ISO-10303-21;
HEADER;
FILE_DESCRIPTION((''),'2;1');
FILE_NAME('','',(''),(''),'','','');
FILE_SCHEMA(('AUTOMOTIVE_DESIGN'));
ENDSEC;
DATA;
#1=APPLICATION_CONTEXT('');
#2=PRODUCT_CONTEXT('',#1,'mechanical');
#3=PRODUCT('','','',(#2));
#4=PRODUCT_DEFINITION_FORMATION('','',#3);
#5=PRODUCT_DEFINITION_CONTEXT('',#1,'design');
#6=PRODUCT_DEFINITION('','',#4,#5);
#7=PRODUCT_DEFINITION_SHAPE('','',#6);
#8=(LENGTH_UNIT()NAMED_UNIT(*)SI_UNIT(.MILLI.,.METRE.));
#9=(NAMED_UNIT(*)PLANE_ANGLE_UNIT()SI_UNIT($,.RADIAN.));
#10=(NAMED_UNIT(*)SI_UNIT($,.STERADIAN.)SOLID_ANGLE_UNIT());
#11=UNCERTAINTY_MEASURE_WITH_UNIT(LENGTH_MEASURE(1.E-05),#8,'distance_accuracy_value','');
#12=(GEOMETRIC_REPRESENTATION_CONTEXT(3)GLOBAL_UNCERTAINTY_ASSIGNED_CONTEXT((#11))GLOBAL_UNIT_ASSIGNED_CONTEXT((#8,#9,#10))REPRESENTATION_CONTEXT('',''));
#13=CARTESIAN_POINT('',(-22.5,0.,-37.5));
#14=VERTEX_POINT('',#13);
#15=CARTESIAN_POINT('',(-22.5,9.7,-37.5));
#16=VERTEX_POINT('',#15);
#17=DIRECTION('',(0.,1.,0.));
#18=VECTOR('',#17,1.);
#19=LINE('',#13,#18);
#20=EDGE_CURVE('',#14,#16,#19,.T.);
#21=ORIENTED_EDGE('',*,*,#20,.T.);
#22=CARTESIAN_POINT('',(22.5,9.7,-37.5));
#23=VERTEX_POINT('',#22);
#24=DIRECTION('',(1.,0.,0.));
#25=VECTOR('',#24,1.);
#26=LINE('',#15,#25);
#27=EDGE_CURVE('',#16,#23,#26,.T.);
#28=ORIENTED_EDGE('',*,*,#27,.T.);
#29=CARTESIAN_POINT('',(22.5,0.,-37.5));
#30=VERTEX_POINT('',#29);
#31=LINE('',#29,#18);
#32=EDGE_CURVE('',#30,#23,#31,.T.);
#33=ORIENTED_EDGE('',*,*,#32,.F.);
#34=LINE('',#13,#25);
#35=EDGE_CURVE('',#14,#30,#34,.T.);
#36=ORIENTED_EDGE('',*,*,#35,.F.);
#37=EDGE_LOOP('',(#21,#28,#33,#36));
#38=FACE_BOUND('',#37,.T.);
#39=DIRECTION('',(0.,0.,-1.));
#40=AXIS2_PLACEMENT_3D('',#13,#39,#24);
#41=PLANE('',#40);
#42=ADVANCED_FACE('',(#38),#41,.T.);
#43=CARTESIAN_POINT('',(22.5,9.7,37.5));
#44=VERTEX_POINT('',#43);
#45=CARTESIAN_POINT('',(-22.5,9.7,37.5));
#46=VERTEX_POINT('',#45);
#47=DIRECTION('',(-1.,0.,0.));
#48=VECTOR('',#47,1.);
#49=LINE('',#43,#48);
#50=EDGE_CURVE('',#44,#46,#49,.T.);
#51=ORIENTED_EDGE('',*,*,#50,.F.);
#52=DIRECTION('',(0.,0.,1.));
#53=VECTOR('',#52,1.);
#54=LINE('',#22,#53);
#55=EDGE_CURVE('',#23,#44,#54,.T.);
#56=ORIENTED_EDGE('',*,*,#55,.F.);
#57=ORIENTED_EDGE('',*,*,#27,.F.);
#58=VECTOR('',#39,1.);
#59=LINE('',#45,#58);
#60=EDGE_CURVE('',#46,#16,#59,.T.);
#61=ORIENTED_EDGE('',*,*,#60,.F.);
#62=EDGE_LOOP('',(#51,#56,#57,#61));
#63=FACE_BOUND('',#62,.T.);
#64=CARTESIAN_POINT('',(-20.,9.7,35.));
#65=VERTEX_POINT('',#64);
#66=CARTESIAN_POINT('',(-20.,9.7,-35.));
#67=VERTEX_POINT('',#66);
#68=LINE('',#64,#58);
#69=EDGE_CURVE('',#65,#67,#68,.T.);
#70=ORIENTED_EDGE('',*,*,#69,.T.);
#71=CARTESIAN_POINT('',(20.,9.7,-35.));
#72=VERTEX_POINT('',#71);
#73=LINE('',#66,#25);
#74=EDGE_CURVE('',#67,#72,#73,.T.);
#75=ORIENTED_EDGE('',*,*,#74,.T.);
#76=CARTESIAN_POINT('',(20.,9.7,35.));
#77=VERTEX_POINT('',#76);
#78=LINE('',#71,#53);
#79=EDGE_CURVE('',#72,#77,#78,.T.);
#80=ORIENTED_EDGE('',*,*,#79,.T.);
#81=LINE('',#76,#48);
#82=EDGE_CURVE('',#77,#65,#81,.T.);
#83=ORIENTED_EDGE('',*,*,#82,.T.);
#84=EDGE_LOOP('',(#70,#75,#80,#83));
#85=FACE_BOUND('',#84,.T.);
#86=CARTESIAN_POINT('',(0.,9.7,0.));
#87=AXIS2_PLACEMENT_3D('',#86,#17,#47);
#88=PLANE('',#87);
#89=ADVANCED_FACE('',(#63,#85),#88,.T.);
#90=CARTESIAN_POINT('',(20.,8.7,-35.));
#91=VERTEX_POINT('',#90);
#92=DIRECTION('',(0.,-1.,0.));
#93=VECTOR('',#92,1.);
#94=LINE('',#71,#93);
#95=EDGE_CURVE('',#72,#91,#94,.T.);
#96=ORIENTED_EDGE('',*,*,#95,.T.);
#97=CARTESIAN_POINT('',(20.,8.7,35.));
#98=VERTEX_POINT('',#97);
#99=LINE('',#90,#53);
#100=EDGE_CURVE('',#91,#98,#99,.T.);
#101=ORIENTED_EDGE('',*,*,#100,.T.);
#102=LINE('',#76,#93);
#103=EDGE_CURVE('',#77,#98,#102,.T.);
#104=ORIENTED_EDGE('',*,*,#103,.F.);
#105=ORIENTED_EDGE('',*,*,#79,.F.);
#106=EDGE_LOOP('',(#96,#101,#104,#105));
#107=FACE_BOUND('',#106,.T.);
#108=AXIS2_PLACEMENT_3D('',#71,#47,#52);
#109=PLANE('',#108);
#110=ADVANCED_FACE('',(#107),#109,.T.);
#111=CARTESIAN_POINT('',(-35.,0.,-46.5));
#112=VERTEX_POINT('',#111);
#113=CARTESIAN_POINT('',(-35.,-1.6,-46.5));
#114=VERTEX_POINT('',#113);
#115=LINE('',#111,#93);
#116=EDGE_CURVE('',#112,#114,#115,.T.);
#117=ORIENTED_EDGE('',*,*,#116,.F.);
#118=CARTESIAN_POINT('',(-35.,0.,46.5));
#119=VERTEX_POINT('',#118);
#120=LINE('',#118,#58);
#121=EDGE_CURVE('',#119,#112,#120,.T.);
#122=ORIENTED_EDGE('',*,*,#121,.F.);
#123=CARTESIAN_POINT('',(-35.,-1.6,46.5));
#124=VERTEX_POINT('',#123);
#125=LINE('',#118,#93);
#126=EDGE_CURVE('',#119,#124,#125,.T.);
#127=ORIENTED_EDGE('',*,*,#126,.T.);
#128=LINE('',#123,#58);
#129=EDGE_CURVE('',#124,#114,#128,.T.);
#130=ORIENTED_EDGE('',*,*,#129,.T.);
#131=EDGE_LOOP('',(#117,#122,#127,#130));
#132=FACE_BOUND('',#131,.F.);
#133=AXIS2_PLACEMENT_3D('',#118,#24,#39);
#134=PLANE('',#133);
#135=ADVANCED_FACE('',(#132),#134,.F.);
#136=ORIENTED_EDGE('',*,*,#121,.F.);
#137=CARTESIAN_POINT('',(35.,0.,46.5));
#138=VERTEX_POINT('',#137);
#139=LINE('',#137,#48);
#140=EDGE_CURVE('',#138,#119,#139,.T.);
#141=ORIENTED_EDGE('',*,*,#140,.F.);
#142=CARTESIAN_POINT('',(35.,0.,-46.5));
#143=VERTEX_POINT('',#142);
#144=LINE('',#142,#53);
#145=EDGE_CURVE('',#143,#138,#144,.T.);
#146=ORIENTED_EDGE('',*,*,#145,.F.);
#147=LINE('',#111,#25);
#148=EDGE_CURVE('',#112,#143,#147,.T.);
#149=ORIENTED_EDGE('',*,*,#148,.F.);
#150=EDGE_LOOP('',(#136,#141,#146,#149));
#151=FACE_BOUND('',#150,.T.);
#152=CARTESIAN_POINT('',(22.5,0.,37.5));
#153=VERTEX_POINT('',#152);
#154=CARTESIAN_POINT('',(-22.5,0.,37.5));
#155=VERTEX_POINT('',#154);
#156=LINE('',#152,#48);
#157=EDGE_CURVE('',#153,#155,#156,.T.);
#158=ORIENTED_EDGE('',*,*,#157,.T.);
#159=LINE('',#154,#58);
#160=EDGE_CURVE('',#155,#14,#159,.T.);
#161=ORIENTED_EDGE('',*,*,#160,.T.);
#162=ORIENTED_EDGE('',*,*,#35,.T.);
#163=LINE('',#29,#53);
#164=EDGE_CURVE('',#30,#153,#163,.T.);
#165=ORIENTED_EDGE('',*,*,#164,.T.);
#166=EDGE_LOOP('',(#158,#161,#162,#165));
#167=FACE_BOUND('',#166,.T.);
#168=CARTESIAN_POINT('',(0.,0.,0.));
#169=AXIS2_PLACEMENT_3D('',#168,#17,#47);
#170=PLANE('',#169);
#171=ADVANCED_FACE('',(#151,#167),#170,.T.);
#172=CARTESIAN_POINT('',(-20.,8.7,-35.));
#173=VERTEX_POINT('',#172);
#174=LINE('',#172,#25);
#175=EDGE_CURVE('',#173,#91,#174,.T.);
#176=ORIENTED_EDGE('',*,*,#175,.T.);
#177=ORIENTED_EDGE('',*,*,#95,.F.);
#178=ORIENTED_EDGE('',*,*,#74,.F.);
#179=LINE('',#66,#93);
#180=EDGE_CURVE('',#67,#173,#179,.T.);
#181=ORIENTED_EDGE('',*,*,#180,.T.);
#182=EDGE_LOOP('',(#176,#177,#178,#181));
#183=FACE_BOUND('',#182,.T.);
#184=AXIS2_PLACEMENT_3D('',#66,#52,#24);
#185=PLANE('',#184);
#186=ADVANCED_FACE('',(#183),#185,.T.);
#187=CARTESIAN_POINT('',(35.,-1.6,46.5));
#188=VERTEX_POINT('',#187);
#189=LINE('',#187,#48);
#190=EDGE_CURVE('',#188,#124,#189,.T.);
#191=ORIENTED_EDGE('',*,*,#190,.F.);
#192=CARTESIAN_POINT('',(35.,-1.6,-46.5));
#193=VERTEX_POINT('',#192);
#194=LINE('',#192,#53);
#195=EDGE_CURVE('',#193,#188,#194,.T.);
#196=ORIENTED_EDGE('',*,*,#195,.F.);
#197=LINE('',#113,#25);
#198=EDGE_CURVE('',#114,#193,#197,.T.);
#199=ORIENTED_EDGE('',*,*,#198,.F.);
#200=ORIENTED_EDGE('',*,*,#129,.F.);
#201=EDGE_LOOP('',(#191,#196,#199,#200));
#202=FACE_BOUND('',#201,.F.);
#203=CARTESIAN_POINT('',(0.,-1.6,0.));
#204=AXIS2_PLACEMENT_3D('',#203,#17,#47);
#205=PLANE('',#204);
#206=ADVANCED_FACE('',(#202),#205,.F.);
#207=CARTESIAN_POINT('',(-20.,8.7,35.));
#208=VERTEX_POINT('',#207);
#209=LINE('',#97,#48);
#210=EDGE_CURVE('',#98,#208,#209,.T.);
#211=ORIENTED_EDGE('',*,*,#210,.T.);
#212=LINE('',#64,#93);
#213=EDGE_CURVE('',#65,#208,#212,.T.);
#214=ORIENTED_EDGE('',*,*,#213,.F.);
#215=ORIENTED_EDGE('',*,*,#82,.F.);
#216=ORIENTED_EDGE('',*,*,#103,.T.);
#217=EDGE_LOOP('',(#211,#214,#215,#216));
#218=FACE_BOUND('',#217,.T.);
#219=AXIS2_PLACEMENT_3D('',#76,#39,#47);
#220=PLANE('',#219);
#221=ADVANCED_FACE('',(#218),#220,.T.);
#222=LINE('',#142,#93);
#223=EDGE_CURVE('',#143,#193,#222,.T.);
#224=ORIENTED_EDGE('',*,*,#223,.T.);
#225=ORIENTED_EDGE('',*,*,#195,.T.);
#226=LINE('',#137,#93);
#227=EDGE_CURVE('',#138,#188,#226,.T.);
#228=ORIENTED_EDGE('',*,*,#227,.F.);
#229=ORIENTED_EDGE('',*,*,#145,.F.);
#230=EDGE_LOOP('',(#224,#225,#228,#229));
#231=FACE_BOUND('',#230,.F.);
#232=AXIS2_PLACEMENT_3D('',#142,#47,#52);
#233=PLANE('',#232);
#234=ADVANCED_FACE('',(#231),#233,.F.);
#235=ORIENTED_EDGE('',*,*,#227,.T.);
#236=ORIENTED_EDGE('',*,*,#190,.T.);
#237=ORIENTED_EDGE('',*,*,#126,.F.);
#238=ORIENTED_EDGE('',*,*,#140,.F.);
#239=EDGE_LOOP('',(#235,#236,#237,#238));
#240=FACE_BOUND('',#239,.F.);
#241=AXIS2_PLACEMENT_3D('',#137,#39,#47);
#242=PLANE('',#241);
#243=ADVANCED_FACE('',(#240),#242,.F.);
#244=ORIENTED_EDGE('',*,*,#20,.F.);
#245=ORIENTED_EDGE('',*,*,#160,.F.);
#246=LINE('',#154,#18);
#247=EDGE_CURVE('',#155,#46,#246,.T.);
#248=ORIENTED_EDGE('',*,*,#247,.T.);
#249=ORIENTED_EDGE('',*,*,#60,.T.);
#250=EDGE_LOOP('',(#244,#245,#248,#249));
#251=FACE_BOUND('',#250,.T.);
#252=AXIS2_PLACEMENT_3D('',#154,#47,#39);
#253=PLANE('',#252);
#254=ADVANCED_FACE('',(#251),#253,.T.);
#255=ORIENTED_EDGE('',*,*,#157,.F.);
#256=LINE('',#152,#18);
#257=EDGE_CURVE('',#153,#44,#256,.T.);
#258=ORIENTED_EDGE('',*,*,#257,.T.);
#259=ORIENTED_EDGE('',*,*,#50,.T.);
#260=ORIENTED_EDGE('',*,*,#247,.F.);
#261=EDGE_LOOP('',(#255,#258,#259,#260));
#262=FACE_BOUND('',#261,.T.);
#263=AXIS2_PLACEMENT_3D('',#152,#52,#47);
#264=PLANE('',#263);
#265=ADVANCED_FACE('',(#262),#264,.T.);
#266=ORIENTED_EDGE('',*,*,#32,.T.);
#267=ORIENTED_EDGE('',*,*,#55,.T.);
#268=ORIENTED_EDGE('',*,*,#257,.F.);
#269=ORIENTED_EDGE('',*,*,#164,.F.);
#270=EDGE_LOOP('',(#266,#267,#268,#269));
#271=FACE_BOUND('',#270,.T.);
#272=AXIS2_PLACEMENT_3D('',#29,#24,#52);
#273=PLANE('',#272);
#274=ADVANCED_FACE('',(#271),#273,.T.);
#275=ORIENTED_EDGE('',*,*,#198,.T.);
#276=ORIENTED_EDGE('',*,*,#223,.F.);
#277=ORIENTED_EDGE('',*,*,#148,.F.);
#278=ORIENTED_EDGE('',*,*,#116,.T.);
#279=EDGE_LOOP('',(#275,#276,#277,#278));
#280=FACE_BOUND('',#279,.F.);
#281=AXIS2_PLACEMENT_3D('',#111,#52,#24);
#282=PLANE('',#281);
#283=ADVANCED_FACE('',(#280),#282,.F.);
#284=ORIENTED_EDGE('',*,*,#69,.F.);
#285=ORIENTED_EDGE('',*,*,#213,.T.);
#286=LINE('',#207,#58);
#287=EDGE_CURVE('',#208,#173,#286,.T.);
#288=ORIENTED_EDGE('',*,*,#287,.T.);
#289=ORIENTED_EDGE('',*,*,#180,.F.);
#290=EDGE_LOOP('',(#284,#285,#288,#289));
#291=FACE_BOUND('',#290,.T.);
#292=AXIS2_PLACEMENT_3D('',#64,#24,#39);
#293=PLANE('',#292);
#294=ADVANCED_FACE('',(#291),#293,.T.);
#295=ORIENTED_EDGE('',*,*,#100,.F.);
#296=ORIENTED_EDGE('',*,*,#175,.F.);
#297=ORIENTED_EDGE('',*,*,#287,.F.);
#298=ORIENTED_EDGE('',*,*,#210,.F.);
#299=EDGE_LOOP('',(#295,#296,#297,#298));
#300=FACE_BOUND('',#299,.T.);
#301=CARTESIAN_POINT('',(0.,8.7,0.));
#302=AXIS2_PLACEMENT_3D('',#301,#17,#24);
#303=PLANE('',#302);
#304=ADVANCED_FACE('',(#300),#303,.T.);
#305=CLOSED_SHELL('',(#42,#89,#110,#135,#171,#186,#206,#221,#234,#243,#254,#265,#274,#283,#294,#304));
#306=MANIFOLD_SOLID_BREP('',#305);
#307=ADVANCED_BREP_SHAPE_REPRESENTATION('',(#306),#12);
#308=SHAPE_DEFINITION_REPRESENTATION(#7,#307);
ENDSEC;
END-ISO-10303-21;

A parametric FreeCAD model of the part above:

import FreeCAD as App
import Part
import Sketcher

doc = App.newDocument("Part")
body = doc.addObject("PartDesign::Body", "Body")

sketch1 = body.newObject("Sketcher::SketchObject", "Sketch")
sketch1.AttachmentSupport = (doc.getObject("XZ_Plane"), [""])
sketch1.MapMode = "FlatFace"
sketch1.addGeometry([
    Part.LineSegment(App.Vector(-35, 46, 0), App.Vector(35, 46, 0)),
    Part.LineSegment(App.Vector(35, 46, 0), App.Vector(35, -46, 0)),
    Part.LineSegment(App.Vector(35, -46, 0), App.Vector(-35, -46, 0)),
    Part.LineSegment(App.Vector(-35, -46, 0), App.Vector(-35, 46, 0)),
], False)
sketch1.addConstraint([
    Sketcher.Constraint("Coincident", 0, 2, 1, 1),
    Sketcher.Constraint("Coincident", 1, 2, 2, 1),
    Sketcher.Constraint("Coincident", 2, 2, 3, 1),
    Sketcher.Constraint("Coincident", 3, 2, 0, 1),
    Sketcher.Constraint("Horizontal", 0),
    Sketcher.Constraint("Vertical", 1),
    Sketcher.Constraint("Horizontal", 2),
    Sketcher.Constraint("Vertical", 3),
    Sketcher.Constraint("Symmetric", 0, 2, 2, 2, -1, 1),
    Sketcher.Constraint("DistanceX", 0, 1, 0, 2, 70.0),
    Sketcher.Constraint("DistanceY", 1, 2, 1, 1, 93.0),
])
pad1 = body.newObject("PartDesign::Pad", "Pad")
pad1.Profile = sketch1
pad1.Length = 1.6

sketch2 = body.newObject("Sketcher::SketchObject", "Sketch001")
sketch2.AttachmentSupport = (doc.getObject("XZ_Plane"), [""])
sketch2.MapMode = "FlatFace"
sketch2.addGeometry([
    Part.LineSegment(App.Vector(-22, 38, 0), App.Vector(22, 38, 0)),
    Part.LineSegment(App.Vector(22, 38, 0), App.Vector(22, -38, 0)),
    Part.LineSegment(App.Vector(22, -38, 0), App.Vector(-22, -38, 0)),
    Part.LineSegment(App.Vector(-22, -38, 0), App.Vector(-22, 38, 0)),
], False)
sketch2.addConstraint([
    Sketcher.Constraint("Coincident", 0, 2, 1, 1),
    Sketcher.Constraint("Coincident", 1, 2, 2, 1),
    Sketcher.Constraint("Coincident", 2, 2, 3, 1),
    Sketcher.Constraint("Coincident", 3, 2, 0, 1),
    Sketcher.Constraint("Horizontal", 0),
    Sketcher.Constraint("Vertical", 1),
    Sketcher.Constraint("Horizontal", 2),
    Sketcher.Constraint("Vertical", 3),
    Sketcher.Constraint("Symmetric", 0, 2, 2, 2, -1, 1),
    Sketcher.Constraint("DistanceX", 0, 1, 0, 2, 45.0),
    Sketcher.Constraint("DistanceY", 1, 2, 1, 1, 75.0),
])
pad2 = body.newObject("PartDesign::Pad", "Pad001")
pad2.Profile = sketch2
pad2.Length = 9.7
pad2.Reversed = True

sketch3 = body.newObject("Sketcher::SketchObject", "Sketch002")
sketch3.AttachmentSupport = (doc.getObject("XZ_Plane"), [""])
sketch3.MapMode = "FlatFace"
sketch3.AttachmentOffset = App.Placement(App.Vector(0, 0, -9.7), App.Rotation())
sketch3.addGeometry([
    Part.LineSegment(App.Vector(-20, 35, 0), App.Vector(20, 35, 0)),
    Part.LineSegment(App.Vector(20, 35, 0), App.Vector(20, -35, 0)),
    Part.LineSegment(App.Vector(20, -35, 0), App.Vector(-20, -35, 0)),
    Part.LineSegment(App.Vector(-20, -35, 0), App.Vector(-20, 35, 0)),
], False)
sketch3.addConstraint([
    Sketcher.Constraint("Coincident", 0, 2, 1, 1),
    Sketcher.Constraint("Coincident", 1, 2, 2, 1),
    Sketcher.Constraint("Coincident", 2, 2, 3, 1),
    Sketcher.Constraint("Coincident", 3, 2, 0, 1),
    Sketcher.Constraint("Horizontal", 0),
    Sketcher.Constraint("Vertical", 1),
    Sketcher.Constraint("Horizontal", 2),
    Sketcher.Constraint("Vertical", 3),
    Sketcher.Constraint("Symmetric", 0, 2, 2, 2, -1, 1),
    Sketcher.Constraint("DistanceX", 0, 1, 0, 2, 40.0),
    Sketcher.Constraint("DistanceY", 1, 2, 1, 1, 70.0),
])
pocket1 = body.newObject("PartDesign::Pocket", "Pocket")
pocket1.Profile = sketch3
pocket1.Length = 1
pocket1.Reversed = True

doc.recompute()
